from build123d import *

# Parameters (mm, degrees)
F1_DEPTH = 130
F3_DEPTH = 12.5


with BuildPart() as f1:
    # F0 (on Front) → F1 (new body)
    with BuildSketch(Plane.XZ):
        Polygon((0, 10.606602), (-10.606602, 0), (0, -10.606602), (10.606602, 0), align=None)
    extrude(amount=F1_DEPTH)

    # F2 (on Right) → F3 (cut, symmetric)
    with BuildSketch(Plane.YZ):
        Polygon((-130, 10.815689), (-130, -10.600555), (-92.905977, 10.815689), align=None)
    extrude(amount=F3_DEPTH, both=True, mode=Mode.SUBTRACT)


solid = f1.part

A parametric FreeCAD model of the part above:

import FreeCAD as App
import Part
import Sketcher

V = App.Vector
Q = App.Units.Quantity

doc = App.newDocument("Part")
body = doc.addObject("PartDesign::Body", "Body")

# Sketch on XZ plane
sketch1 = doc.addObject("Sketcher::SketchObject", "Sketch")
body.addObject(sketch1)
sketch1.AttachmentSupport = (doc.XZ_Plane, [""])
sketch1.MapMode = "FlatFace"
sketch1.addGeometry([
    Part.LineSegment(V(0, 11, 0), V(-11, 0, 0)),
    Part.LineSegment(V(-11, 0, 0), V(0, -11, 0)),
    Part.LineSegment(V(0, -11, 0), V(11, 0, 0)),
    Part.LineSegment(V(11, 0, 0), V(0, 11, 0)),
], False)
sketch1.addConstraint([
    Sketcher.Constraint("Coincident", 0, 2, 1, 1),
    Sketcher.Constraint("Coincident", 1, 2, 2, 1),
    Sketcher.Constraint("Coincident", 2, 2, 3, 1),
    Sketcher.Constraint("Coincident", 3, 2, 0, 1),
    Sketcher.Constraint("Symmetric", 0, 2, 2, 2, -1, 1),
    Sketcher.Constraint("Symmetric", 1, 2, 3, 2, -1, 1),
    Sketcher.Constraint("PointOnObject", 0, 2, -1),
    Sketcher.Constraint("PointOnObject", 1, 2, -2),
    Sketcher.Constraint("Perpendicular", 0, 1),
    Sketcher.Constraint("Distance", 0, Q("15 mm")),
])
pad1 = doc.addObject("PartDesign::Pad", "Pad")
body.addObject(pad1)
pad1.Profile = sketch1
pad1.Length = 130

# Sketch on YZ plane
sketch2 = doc.addObject("Sketcher::SketchObject", "Sketch001")
body.addObject(sketch2)
sketch2.AttachmentSupport = (doc.YZ_Plane, [""])
sketch2.MapMode = "FlatFace"
sketch2.addGeometry([
    Part.LineSegment(V(-130, 11, 0), V(-130, -11, 0)),
    Part.LineSegment(V(-130, -11, 0), V(-93, 11, 0)),
    Part.LineSegment(V(-93, 11, 0), V(-130, 11, 0)),
], False)
sketch2.addConstraint([
    Sketcher.Constraint("Coincident", 0, 2, 1, 1),
    Sketcher.Constraint("Coincident", 1, 2, 2, 1),
    Sketcher.Constraint("Coincident", 2, 2, 0, 1),
    Sketcher.Constraint("Vertical", 0),
    Sketcher.Constraint("Horizontal", 2),
    Sketcher.Constraint("Angle", 1, Q("30 deg")),
    Sketcher.Constraint("DistanceX", 0, 2, -1, 1, Q("130 mm")),
    Sketcher.Constraint("Distance", 1, Q("42.832488 mm")),
    Sketcher.Constraint("DistanceY", -1, 1, 1, 2, Q("10.815689 mm")),
])
pocket1 = doc.addObject("PartDesign::Pocket", "Pocket")
body.addObject(pocket1)
pocket1.Profile = sketch2
pocket1.Length = 25
pocket1.Midplane = True

doc.recompute()
